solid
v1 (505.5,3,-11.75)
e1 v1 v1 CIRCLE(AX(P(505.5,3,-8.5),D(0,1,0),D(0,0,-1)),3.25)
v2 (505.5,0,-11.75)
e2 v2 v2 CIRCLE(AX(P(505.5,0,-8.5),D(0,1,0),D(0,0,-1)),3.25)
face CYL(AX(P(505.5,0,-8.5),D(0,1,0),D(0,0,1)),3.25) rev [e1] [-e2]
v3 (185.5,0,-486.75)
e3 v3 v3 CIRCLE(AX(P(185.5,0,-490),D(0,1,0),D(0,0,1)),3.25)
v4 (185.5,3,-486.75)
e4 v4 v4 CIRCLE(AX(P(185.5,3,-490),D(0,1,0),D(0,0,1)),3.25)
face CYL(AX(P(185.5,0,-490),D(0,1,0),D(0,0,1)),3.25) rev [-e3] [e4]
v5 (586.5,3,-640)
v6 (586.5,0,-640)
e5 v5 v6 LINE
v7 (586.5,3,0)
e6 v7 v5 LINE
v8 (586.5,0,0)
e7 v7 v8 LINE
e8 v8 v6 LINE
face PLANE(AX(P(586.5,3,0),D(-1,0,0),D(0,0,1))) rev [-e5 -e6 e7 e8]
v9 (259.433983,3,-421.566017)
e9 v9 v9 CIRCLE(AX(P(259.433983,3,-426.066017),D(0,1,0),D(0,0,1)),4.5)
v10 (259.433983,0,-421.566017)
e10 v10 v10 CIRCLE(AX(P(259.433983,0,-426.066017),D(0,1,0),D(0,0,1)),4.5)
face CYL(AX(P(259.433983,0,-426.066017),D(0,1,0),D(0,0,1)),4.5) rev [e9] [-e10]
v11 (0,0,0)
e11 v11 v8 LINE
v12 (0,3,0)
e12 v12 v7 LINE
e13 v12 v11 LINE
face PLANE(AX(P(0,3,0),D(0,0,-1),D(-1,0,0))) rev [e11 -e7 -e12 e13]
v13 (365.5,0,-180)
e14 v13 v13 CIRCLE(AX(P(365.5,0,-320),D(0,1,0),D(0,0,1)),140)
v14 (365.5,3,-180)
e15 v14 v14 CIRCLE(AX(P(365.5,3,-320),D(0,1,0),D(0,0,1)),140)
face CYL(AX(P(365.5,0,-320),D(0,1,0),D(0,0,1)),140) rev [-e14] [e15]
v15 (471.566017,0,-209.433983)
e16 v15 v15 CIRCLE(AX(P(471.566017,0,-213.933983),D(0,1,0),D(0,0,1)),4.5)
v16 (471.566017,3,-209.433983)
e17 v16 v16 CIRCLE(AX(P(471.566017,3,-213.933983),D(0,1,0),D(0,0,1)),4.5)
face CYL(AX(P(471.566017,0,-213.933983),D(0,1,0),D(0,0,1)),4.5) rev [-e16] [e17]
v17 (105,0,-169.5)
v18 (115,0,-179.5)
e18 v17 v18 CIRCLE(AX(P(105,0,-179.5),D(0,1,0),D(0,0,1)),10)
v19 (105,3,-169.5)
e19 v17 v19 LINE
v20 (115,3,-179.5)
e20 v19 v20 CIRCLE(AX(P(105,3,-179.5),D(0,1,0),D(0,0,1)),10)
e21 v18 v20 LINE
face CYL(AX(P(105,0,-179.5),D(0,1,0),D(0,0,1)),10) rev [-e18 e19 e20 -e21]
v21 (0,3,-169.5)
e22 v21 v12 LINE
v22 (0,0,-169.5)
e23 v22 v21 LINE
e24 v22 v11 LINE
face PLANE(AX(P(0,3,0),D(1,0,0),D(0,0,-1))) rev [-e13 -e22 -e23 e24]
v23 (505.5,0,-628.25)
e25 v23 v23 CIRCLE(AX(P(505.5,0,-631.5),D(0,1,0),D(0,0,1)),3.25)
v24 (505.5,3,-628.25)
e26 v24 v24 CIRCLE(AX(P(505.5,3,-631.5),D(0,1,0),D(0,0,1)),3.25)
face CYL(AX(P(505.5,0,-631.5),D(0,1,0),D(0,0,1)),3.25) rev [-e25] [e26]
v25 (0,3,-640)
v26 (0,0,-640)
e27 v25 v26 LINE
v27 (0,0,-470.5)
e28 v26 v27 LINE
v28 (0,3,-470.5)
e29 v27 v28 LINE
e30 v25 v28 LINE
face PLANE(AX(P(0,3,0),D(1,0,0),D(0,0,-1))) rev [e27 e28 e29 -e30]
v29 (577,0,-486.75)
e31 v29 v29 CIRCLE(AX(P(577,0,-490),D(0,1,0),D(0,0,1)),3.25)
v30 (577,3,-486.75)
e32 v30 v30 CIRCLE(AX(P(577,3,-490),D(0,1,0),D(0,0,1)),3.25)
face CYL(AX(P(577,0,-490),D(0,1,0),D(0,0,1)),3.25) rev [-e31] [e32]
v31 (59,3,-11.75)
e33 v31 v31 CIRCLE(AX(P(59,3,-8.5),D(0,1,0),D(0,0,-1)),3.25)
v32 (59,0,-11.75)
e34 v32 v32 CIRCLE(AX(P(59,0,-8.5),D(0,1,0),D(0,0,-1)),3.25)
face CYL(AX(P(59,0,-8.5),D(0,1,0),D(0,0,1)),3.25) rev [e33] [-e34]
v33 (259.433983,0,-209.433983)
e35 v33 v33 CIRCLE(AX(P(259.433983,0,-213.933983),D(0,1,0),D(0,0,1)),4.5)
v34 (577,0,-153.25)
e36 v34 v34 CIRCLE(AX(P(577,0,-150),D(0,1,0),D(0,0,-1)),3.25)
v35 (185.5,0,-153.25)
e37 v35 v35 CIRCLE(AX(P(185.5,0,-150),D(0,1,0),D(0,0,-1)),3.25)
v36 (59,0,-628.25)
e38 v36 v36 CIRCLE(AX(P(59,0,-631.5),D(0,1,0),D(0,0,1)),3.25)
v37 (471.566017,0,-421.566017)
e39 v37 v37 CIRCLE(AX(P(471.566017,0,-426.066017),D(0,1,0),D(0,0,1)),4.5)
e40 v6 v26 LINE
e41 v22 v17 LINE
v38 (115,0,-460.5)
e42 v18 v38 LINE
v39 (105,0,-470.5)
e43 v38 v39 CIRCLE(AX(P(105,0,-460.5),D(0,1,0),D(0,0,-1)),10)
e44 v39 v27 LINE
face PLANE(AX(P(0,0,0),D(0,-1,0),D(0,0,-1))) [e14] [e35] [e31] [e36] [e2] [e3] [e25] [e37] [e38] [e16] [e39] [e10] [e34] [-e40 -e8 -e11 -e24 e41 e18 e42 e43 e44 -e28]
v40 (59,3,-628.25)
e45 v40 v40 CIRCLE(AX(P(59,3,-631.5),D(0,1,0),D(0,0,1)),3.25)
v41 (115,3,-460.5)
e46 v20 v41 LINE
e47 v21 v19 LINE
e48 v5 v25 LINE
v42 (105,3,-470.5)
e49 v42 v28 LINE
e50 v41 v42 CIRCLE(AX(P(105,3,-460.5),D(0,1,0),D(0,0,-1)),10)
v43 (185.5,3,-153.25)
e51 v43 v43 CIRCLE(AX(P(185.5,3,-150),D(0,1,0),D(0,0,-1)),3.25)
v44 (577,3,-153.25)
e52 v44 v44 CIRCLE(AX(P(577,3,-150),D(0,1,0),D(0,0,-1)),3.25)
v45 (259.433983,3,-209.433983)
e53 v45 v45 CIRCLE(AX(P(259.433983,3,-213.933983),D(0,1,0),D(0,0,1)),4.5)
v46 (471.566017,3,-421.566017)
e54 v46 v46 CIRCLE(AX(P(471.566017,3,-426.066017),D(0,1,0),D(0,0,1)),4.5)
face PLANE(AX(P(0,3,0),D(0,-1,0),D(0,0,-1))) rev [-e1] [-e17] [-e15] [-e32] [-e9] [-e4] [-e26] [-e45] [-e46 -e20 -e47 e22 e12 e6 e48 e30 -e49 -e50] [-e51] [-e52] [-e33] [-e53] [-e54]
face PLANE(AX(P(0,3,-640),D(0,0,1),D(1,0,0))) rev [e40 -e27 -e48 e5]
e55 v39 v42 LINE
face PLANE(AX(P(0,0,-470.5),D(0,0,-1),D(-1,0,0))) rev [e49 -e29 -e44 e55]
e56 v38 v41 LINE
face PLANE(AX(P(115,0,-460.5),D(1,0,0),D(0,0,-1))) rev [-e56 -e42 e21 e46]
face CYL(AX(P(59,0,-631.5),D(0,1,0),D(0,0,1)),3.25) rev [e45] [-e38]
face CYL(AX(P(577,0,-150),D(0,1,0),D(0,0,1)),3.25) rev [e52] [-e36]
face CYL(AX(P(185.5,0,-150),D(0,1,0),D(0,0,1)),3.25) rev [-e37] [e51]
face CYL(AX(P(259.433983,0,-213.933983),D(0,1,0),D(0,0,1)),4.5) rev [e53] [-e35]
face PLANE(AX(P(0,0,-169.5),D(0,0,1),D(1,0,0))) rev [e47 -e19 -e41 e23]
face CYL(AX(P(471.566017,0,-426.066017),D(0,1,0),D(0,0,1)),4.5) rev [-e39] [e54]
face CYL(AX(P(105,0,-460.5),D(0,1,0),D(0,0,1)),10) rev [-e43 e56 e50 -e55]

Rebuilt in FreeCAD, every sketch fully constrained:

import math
import FreeCAD as App
import Part
import Sketcher
Q = App.Units.Quantity


def add_polygon(sketch, points):
    """Adds a closed chain of lines whose ends are joined by coincident constraints."""
    first, n = sketch.GeometryCount, len(points)
    for a, b in zip(points, points[1:] + points[:1]):
        sketch.addGeometry(Part.LineSegment(App.Vector(*a, 0), App.Vector(*b, 0)), False)
    for i in range(n):
        sketch.addConstraint(Sketcher.Constraint("Coincident", first + i, 2, first + (i + 1) % n, 1))

doc = App.newDocument("Part")
body = doc.addObject("PartDesign::Body", "Body")

# Sketch on XZ plane
sketch1 = body.newObject("Sketcher::SketchObject", "Sketch")
sketch1.AttachmentSupport = (doc.getObject("XZ_Plane"), [""])
sketch1.MapMode = "FlatFace"
add_polygon(sketch1, [(0, -640), (0, 0), (586, 0), (586, -640)])  # lines 0-3
sketch1.addConstraint([
    Sketcher.Constraint("Vertical", 0),
    Sketcher.Constraint("Horizontal", 1),
    Sketcher.Constraint("Vertical", 2),
    Sketcher.Constraint("Horizontal", 3),
    Sketcher.Constraint("Coincident", 0, 2, -1, 1),
    Sketcher.Constraint("DistanceY", 0, 1, 0, 2, Q("640 mm")),
    Sketcher.Constraint("DistanceX", 1, 1, 1, 2, Q("586.5 mm")),
])
pad1 = body.newObject("PartDesign::Pad", "Pad")
pad1.Profile = sketch1
pad1.Length = 3
pad1.Reversed = True

# Sketch on XZ plane
sketch2 = body.newObject("Sketcher::SketchObject", "Sketch001")
sketch2.AttachmentSupport = (doc.getObject("XZ_Plane"), [""])
sketch2.MapMode = "FlatFace"
sketch2.AttachmentOffset = App.Placement(App.Vector(0, 0, -3), App.Rotation())
sketch2.addGeometry([
    Part.LineSegment(App.Vector(105, -470, 0), App.Vector(0, -470, 0)),  # 0
    Part.LineSegment(App.Vector(0, -470, 0), App.Vector(0, -170, 0)),  # 1
    Part.LineSegment(App.Vector(0, -170, 0), App.Vector(105, -170, 0)),  # 2
    Part.ArcOfCircle(Part.Circle(App.Vector(105, -180, 0), App.Vector(0, 0, 1), 10), math.radians(0), math.radians(90)),  # 3
    Part.LineSegment(App.Vector(115, -180, 0), App.Vector(115, -460, 0)),  # 4
    Part.ArcOfCircle(Part.Circle(App.Vector(105, -460, 0), App.Vector(0, 0, 1), 10), math.radians(-90), math.radians(0)),  # 5
], False)
sketch2.addConstraint([
    Sketcher.Constraint("Coincident", 0, 2, 1, 1),
    Sketcher.Constraint("Coincident", 1, 2, 2, 1),
    Sketcher.Constraint("Tangent", 2, 2, 3, 2),
    Sketcher.Constraint("Tangent", 3, 1, 4, 1),
    Sketcher.Constraint("Tangent", 4, 2, 5, 2),
    Sketcher.Constraint("Tangent", 5, 1, 0, 1),
    Sketcher.Constraint("Horizontal", 0),
    Sketcher.Constraint("Vertical", 1),
    Sketcher.Constraint("Horizontal", 2),
    Sketcher.Constraint("Vertical", 4),
    Sketcher.Constraint("Equal", 3, 5),
    Sketcher.Constraint("PointOnObject", 0, 2, -2),
    Sketcher.Constraint("Radius", 3, Q("10 mm")),
    Sketcher.Constraint("DistanceX", 0, 2, 0, 1, Q("105 mm")),
    Sketcher.Constraint("DistanceY", 1, 1, 1, 2, Q("301 mm")),
    Sketcher.Constraint("DistanceY", 3, 3, -1, 1, Q("179.5 mm")),
])
pocket1 = body.newObject("PartDesign::Pocket", "Pocket")
pocket1.Profile = sketch2
pocket1.Length = 3
pocket1.Reversed = True

# Sketch on XZ plane
sketch3 = body.newObject("Sketcher::SketchObject", "Sketch002")
sketch3.AttachmentSupport = (doc.getObject("XZ_Plane"), [""])
sketch3.MapMode = "FlatFace"
sketch3.AttachmentOffset = App.Placement(App.Vector(0, 0, -3), App.Rotation())
sketch3.addGeometry(Part.Circle(App.Vector(366, -320, 0), App.Vector(0, 0, 1), 140), False)
sketch3.addConstraint([
    Sketcher.Constraint("Diameter", 0, Q("280 mm")),
    Sketcher.Constraint("DistanceY", 0, 3, -1, 1, Q("320 mm")),
    Sketcher.Constraint("DistanceX", -1, 1, 0, 3, Q("365.5 mm")),
])
pocket2 = body.newObject("PartDesign::Pocket", "Pocket001")
pocket2.Profile = sketch3
pocket2.Length = 3
pocket2.Reversed = True

# Sketch on XZ plane
sketch4 = body.newObject("Sketcher::SketchObject", "Sketch003")
sketch4.AttachmentSupport = (doc.getObject("XZ_Plane"), [""])
sketch4.MapMode = "FlatFace"
sketch4.AttachmentOffset = App.Placement(App.Vector(0, 0, -3), App.Rotation())
sketch4.addGeometry([
    Part.Circle(App.Vector(259.4, -426.1, 0), App.Vector(0, 0, 1), 4.5),
    Part.Circle(App.Vector(471.6, -426.1, 0), App.Vector(0, 0, 1), 4.5),
    Part.Circle(App.Vector(471.6, -213.9, 0), App.Vector(0, 0, 1), 4.5),
    Part.Circle(App.Vector(259.4, -213.9, 0), App.Vector(0, 0, 1), 4.5),
], False)
sketch4.addConstraint([
    Sketcher.Constraint("Equal", 0, 1),
    Sketcher.Constraint("Equal", 1, 2),
    Sketcher.Constraint("Equal", 2, 3),
    Sketcher.Constraint("Horizontal", 0, 3, 1, 3),
    Sketcher.Constraint("Horizontal", 2, 3, 3, 3),
    Sketcher.Constraint("Vertical", 1, 3, 2, 3),
    Sketcher.Constraint("Vertical", 0, 3, 3, 3),
    Sketcher.Constraint("Diameter", 0, Q("9 mm")),
    Sketcher.Constraint("DistanceX", -1, 1, 0, 3, Q("259.433983 mm")),
    Sketcher.Constraint("DistanceY", 0, 3, -1, 1, Q("426.066017 mm")),
    Sketcher.Constraint("DistanceX", -1, 1, 1, 3, Q("471.566017 mm")),
    Sketcher.Constraint("DistanceY", 2, 3, -1, 1, Q("213.933983 mm")),
])
pocket3 = body.newObject("PartDesign::Pocket", "Pocket002")
pocket3.Profile = sketch4
pocket3.Type = "ThroughAll"
pocket3.Reversed = True

# Sketch on XZ plane
sketch5 = body.newObject("Sketcher::SketchObject", "Sketch004")
sketch5.AttachmentSupport = (doc.getObject("XZ_Plane"), [""])
sketch5.MapMode = "FlatFace"
sketch5.AttachmentOffset = App.Placement(App.Vector(0, 0, -3), App.Rotation())
sketch5.addGeometry([
    Part.Circle(App.Vector(59, -631.5, 0), App.Vector(0, 0, 1), 3.2),  # 0
    Part.Circle(App.Vector(505.5, -631.5, 0), App.Vector(0, 0, 1), 3.2),  # 1
    Part.Circle(App.Vector(185.5, -490, 0), App.Vector(0, 0, 1), 3.2),  # 2
    Part.Circle(App.Vector(577, -490, 0), App.Vector(0, 0, 1), 3.2),  # 3
    Part.Circle(App.Vector(577, -150, 0), App.Vector(0, 0, 1), 3.2),  # 4
    Part.Circle(App.Vector(185.5, -150, 0), App.Vector(0, 0, 1), 3.2),  # 5
    Part.Circle(App.Vector(505.5, -8.5, 0), App.Vector(0, 0, 1), 3.2),  # 6
    Part.Circle(App.Vector(59, -8.5, 0), App.Vector(0, 0, 1), 3.2),  # 7
], False)
sketch5.addConstraint([
    Sketcher.Constraint("Equal", 0, 1),
    Sketcher.Constraint("Equal", 1, 2),
    Sketcher.Constraint("Equal", 2, 3),
    Sketcher.Constraint("Equal", 3, 4),
    Sketcher.Constraint("Equal", 4, 5),
    Sketcher.Constraint("Equal", 5, 6),
    Sketcher.Constraint("Equal", 6, 7),
    Sketcher.Constraint("Horizontal", 0, 3, 1, 3),
    Sketcher.Constraint("Horizontal", 2, 3, 3, 3),
    Sketcher.Constraint("Horizontal", 4, 3, 5, 3),
    Sketcher.Constraint("Horizontal", 6, 3, 7, 3),
    Sketcher.Constraint("Vertical", 3, 3, 4, 3),
    Sketcher.Constraint("Vertical", 2, 3, 5, 3),
    Sketcher.Constraint("Vertical", 1, 3, 6, 3),
    Sketcher.Constraint("Vertical", 0, 3, 7, 3),
    Sketcher.Constraint("Diameter", 0, Q("6.5 mm")),
    Sketcher.Constraint("DistanceX", -1, 1, 0, 3, Q("59 mm")),
    Sketcher.Constraint("DistanceY", 2, 3, -1, 1, Q("490 mm")),
    Sketcher.Constraint("DistanceX", -1, 1, 3, 3, Q("577 mm")),
    Sketcher.Constraint("DistanceY", 4, 3, -1, 1, Q("150 mm")),
    Sketcher.Constraint("DistanceX", 2, 3, 1, 3, Q("320 mm")),
    Sketcher.Constraint("DistanceY", 1, 3, 6, 3, Q("623 mm")),
    Sketcher.Constraint("DistanceY", 0, 3, -1, 1, Q("631.5 mm")),
    Sketcher.Constraint("DistanceX", -1, 1, 1, 3, Q("505.5 mm")),
])
pocket4 = body.newObject("PartDesign::Pocket", "Pocket003")
pocket4.Profile = sketch5
pocket4.Type = "ThroughAll"
pocket4.Reversed = True

doc.recompute()
